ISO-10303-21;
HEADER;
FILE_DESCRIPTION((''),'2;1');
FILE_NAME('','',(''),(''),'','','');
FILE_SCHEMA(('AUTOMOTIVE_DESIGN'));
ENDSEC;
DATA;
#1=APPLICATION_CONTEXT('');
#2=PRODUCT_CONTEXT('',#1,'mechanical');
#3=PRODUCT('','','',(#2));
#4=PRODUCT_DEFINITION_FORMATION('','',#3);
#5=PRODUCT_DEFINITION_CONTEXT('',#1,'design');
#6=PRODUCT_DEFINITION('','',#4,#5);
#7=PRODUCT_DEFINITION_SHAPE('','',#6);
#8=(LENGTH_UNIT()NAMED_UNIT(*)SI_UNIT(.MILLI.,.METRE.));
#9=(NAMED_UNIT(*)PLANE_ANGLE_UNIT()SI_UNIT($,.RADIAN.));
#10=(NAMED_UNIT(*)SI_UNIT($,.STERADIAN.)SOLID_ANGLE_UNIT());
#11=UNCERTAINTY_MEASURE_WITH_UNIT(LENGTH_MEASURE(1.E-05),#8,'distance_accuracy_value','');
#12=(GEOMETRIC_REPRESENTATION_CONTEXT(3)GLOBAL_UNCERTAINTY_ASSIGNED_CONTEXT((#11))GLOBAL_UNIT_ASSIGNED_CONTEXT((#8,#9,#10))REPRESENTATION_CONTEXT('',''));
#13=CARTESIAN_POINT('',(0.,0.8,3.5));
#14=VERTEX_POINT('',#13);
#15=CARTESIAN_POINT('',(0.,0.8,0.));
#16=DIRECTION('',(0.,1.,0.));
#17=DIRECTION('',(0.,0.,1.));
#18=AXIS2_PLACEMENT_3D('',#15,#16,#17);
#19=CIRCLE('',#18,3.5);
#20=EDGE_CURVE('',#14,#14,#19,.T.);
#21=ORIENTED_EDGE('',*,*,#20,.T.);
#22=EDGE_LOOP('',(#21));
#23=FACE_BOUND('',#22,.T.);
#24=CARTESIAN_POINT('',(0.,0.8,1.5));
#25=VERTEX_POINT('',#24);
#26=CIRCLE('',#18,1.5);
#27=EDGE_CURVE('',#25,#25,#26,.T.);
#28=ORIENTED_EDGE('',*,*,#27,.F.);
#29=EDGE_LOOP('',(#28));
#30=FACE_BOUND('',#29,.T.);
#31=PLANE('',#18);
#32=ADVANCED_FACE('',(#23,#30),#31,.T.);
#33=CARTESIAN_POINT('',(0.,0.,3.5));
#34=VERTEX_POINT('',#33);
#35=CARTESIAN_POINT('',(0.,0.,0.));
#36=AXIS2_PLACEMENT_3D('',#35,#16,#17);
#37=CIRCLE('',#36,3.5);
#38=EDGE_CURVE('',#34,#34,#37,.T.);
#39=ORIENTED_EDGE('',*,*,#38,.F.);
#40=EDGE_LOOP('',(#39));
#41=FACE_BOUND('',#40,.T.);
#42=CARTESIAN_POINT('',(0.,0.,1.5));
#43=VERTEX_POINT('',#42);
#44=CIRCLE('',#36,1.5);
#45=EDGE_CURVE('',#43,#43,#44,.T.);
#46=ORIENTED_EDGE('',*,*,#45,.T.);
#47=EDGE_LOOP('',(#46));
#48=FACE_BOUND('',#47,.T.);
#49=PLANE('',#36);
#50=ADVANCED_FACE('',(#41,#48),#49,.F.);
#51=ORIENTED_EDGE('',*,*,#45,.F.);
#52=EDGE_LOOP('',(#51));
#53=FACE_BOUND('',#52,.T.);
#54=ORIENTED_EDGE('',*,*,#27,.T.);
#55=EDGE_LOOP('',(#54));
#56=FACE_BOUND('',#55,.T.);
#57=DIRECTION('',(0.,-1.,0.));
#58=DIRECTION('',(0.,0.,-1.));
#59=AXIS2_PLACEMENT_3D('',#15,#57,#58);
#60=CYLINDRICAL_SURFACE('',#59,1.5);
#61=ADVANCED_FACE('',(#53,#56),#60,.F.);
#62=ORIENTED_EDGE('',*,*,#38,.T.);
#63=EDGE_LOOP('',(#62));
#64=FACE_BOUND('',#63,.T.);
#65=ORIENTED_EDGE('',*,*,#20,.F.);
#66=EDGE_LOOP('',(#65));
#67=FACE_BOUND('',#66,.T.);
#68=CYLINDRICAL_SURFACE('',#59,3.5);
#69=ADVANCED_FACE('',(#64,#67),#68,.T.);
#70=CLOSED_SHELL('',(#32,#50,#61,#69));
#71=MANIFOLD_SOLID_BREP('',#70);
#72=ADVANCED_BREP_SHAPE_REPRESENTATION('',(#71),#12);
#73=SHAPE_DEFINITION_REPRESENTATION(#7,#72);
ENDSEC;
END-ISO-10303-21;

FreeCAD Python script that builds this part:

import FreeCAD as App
import Part
import Sketcher
from FreeCAD import Vector

doc = App.newDocument("Part")
body = doc.addObject("PartDesign::Body", "Body")

sketch1 = doc.addObject("Sketcher::SketchObject", "Sketch")
body.addObject(sketch1)
sketch1.AttachmentSupport = (doc.XZ_Plane, [""])
sketch1.MapMode = "FlatFace"
sketch1.addGeometry(Part.Circle(Vector(0, 0, 0), Vector(0, 0, 1), 3.5), False)
sketch1.addGeometry(Part.Circle(Vector(0, 0, 0), Vector(0, 0, 1), 1.5), False)
sketch1.addConstraint(Sketcher.Constraint("Coincident", 0, 3, -1, 1))
sketch1.addConstraint(Sketcher.Constraint("Coincident", 1, 3, -1, 1))
sketch1.addConstraint(Sketcher.Constraint("Diameter", 0, 7.0))
sketch1.addConstraint(Sketcher.Constraint("Diameter", 1, 3.0))
pad1 = doc.addObject("PartDesign::Pad", "Pad")
body.addObject(pad1)
pad1.Profile = sketch1
pad1.Length = 0.8
pad1.Reversed = True

doc.recompute()
